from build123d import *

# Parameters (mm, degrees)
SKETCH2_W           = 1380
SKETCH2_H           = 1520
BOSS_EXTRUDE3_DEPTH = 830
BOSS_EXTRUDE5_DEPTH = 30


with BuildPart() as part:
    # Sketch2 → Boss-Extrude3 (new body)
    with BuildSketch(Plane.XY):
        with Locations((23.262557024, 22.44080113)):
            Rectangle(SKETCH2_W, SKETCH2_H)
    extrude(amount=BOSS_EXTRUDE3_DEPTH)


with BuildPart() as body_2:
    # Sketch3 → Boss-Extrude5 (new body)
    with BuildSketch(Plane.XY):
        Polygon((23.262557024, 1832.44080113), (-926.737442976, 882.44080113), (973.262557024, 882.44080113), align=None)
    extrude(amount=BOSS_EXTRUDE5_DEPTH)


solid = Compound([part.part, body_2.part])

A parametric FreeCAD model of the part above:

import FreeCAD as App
import Part
import Sketcher
from FreeCAD import Vector
Q = App.Units.Quantity

doc = App.newDocument("Part")
body = doc.addObject("PartDesign::Body", "Body")

sketch1 = body.newObject("Sketcher::SketchObject", "Sketch")
sketch1.AttachmentSupport = (doc.getObject("XY_Plane"), [""])
sketch1.MapMode = "FlatFace"
sketch1.addGeometry([
    Part.LineSegment(Vector(-666.737443, 782.440801, 0), Vector(-666.737443, -737.559199, 0)),
    Part.LineSegment(Vector(-666.737443, -737.559199, 0), Vector(713.262557, -737.559199, 0)),
    Part.LineSegment(Vector(713.262557, -737.559199, 0), Vector(713.262557, 782.440801, 0)),
    Part.LineSegment(Vector(713.262557, 782.440801, 0), Vector(-666.737443, 782.440801, 0)),
], False)
sketch1.addConstraint([
    Sketcher.Constraint("Coincident", 0, 2, 1, 1),
    Sketcher.Constraint("Coincident", 1, 2, 2, 1),
    Sketcher.Constraint("Coincident", 2, 2, 3, 1),
    Sketcher.Constraint("Coincident", 3, 2, 0, 1),
    Sketcher.Constraint("Vertical", 0),
    Sketcher.Constraint("Horizontal", 1),
    Sketcher.Constraint("Vertical", 2),
    Sketcher.Constraint("Horizontal", 3),
    Sketcher.Constraint("DistanceX", 1, 1, 1, 2, Q("1380 mm")),
    Sketcher.Constraint("DistanceY", 0, 2, 0, 1, Q("1520 mm")),
    Sketcher.Constraint("DistanceY", 0, 2, -1, 1, Q("737.559199 mm")),
    Sketcher.Constraint("DistanceX", 0, 2, -1, 1, Q("666.737443 mm")),
])
pad1 = body.newObject("PartDesign::Pad", "Pad")
pad1.Profile = sketch1
pad1.Length = 830
body2 = doc.addObject("PartDesign::Body", "Body001")

sketch2 = body2.newObject("Sketcher::SketchObject", "Sketch001")
sketch2.AttachmentSupport = (doc.getObject("XY_Plane001"), [""])
sketch2.MapMode = "FlatFace"
sketch2.addGeometry([
    Part.LineSegment(Vector(23.262557, 1832.440801, 0), Vector(-926.737443, 882.440801, 0)),
    Part.LineSegment(Vector(-926.737443, 882.440801, 0), Vector(973.262557, 882.440801, 0)),
    Part.LineSegment(Vector(973.262557, 882.440801, 0), Vector(23.262557, 1832.440801, 0)),
], False)
sketch2.addConstraint([
    Sketcher.Constraint("Coincident", 0, 2, 1, 1),
    Sketcher.Constraint("Coincident", 1, 2, 2, 1),
    Sketcher.Constraint("Coincident", 2, 2, 0, 1),
    Sketcher.Constraint("Horizontal", 1),
    Sketcher.Constraint("Perpendicular", 0, 2),
    Sketcher.Constraint("Equal", 0, 2),
    Sketcher.Constraint("DistanceX", 1, 1, 1, 2, Q("1900 mm")),
    Sketcher.Constraint("DistanceY", -1, 1, 0, 2, Q("882.440801 mm")),
    Sketcher.Constraint("DistanceX", 0, 2, -1, 1, Q("926.737443 mm")),
])
pad2 = body2.newObject("PartDesign::Pad", "Pad001")
pad2.Profile = sketch2
pad2.Length = 30

doc.recompute()
